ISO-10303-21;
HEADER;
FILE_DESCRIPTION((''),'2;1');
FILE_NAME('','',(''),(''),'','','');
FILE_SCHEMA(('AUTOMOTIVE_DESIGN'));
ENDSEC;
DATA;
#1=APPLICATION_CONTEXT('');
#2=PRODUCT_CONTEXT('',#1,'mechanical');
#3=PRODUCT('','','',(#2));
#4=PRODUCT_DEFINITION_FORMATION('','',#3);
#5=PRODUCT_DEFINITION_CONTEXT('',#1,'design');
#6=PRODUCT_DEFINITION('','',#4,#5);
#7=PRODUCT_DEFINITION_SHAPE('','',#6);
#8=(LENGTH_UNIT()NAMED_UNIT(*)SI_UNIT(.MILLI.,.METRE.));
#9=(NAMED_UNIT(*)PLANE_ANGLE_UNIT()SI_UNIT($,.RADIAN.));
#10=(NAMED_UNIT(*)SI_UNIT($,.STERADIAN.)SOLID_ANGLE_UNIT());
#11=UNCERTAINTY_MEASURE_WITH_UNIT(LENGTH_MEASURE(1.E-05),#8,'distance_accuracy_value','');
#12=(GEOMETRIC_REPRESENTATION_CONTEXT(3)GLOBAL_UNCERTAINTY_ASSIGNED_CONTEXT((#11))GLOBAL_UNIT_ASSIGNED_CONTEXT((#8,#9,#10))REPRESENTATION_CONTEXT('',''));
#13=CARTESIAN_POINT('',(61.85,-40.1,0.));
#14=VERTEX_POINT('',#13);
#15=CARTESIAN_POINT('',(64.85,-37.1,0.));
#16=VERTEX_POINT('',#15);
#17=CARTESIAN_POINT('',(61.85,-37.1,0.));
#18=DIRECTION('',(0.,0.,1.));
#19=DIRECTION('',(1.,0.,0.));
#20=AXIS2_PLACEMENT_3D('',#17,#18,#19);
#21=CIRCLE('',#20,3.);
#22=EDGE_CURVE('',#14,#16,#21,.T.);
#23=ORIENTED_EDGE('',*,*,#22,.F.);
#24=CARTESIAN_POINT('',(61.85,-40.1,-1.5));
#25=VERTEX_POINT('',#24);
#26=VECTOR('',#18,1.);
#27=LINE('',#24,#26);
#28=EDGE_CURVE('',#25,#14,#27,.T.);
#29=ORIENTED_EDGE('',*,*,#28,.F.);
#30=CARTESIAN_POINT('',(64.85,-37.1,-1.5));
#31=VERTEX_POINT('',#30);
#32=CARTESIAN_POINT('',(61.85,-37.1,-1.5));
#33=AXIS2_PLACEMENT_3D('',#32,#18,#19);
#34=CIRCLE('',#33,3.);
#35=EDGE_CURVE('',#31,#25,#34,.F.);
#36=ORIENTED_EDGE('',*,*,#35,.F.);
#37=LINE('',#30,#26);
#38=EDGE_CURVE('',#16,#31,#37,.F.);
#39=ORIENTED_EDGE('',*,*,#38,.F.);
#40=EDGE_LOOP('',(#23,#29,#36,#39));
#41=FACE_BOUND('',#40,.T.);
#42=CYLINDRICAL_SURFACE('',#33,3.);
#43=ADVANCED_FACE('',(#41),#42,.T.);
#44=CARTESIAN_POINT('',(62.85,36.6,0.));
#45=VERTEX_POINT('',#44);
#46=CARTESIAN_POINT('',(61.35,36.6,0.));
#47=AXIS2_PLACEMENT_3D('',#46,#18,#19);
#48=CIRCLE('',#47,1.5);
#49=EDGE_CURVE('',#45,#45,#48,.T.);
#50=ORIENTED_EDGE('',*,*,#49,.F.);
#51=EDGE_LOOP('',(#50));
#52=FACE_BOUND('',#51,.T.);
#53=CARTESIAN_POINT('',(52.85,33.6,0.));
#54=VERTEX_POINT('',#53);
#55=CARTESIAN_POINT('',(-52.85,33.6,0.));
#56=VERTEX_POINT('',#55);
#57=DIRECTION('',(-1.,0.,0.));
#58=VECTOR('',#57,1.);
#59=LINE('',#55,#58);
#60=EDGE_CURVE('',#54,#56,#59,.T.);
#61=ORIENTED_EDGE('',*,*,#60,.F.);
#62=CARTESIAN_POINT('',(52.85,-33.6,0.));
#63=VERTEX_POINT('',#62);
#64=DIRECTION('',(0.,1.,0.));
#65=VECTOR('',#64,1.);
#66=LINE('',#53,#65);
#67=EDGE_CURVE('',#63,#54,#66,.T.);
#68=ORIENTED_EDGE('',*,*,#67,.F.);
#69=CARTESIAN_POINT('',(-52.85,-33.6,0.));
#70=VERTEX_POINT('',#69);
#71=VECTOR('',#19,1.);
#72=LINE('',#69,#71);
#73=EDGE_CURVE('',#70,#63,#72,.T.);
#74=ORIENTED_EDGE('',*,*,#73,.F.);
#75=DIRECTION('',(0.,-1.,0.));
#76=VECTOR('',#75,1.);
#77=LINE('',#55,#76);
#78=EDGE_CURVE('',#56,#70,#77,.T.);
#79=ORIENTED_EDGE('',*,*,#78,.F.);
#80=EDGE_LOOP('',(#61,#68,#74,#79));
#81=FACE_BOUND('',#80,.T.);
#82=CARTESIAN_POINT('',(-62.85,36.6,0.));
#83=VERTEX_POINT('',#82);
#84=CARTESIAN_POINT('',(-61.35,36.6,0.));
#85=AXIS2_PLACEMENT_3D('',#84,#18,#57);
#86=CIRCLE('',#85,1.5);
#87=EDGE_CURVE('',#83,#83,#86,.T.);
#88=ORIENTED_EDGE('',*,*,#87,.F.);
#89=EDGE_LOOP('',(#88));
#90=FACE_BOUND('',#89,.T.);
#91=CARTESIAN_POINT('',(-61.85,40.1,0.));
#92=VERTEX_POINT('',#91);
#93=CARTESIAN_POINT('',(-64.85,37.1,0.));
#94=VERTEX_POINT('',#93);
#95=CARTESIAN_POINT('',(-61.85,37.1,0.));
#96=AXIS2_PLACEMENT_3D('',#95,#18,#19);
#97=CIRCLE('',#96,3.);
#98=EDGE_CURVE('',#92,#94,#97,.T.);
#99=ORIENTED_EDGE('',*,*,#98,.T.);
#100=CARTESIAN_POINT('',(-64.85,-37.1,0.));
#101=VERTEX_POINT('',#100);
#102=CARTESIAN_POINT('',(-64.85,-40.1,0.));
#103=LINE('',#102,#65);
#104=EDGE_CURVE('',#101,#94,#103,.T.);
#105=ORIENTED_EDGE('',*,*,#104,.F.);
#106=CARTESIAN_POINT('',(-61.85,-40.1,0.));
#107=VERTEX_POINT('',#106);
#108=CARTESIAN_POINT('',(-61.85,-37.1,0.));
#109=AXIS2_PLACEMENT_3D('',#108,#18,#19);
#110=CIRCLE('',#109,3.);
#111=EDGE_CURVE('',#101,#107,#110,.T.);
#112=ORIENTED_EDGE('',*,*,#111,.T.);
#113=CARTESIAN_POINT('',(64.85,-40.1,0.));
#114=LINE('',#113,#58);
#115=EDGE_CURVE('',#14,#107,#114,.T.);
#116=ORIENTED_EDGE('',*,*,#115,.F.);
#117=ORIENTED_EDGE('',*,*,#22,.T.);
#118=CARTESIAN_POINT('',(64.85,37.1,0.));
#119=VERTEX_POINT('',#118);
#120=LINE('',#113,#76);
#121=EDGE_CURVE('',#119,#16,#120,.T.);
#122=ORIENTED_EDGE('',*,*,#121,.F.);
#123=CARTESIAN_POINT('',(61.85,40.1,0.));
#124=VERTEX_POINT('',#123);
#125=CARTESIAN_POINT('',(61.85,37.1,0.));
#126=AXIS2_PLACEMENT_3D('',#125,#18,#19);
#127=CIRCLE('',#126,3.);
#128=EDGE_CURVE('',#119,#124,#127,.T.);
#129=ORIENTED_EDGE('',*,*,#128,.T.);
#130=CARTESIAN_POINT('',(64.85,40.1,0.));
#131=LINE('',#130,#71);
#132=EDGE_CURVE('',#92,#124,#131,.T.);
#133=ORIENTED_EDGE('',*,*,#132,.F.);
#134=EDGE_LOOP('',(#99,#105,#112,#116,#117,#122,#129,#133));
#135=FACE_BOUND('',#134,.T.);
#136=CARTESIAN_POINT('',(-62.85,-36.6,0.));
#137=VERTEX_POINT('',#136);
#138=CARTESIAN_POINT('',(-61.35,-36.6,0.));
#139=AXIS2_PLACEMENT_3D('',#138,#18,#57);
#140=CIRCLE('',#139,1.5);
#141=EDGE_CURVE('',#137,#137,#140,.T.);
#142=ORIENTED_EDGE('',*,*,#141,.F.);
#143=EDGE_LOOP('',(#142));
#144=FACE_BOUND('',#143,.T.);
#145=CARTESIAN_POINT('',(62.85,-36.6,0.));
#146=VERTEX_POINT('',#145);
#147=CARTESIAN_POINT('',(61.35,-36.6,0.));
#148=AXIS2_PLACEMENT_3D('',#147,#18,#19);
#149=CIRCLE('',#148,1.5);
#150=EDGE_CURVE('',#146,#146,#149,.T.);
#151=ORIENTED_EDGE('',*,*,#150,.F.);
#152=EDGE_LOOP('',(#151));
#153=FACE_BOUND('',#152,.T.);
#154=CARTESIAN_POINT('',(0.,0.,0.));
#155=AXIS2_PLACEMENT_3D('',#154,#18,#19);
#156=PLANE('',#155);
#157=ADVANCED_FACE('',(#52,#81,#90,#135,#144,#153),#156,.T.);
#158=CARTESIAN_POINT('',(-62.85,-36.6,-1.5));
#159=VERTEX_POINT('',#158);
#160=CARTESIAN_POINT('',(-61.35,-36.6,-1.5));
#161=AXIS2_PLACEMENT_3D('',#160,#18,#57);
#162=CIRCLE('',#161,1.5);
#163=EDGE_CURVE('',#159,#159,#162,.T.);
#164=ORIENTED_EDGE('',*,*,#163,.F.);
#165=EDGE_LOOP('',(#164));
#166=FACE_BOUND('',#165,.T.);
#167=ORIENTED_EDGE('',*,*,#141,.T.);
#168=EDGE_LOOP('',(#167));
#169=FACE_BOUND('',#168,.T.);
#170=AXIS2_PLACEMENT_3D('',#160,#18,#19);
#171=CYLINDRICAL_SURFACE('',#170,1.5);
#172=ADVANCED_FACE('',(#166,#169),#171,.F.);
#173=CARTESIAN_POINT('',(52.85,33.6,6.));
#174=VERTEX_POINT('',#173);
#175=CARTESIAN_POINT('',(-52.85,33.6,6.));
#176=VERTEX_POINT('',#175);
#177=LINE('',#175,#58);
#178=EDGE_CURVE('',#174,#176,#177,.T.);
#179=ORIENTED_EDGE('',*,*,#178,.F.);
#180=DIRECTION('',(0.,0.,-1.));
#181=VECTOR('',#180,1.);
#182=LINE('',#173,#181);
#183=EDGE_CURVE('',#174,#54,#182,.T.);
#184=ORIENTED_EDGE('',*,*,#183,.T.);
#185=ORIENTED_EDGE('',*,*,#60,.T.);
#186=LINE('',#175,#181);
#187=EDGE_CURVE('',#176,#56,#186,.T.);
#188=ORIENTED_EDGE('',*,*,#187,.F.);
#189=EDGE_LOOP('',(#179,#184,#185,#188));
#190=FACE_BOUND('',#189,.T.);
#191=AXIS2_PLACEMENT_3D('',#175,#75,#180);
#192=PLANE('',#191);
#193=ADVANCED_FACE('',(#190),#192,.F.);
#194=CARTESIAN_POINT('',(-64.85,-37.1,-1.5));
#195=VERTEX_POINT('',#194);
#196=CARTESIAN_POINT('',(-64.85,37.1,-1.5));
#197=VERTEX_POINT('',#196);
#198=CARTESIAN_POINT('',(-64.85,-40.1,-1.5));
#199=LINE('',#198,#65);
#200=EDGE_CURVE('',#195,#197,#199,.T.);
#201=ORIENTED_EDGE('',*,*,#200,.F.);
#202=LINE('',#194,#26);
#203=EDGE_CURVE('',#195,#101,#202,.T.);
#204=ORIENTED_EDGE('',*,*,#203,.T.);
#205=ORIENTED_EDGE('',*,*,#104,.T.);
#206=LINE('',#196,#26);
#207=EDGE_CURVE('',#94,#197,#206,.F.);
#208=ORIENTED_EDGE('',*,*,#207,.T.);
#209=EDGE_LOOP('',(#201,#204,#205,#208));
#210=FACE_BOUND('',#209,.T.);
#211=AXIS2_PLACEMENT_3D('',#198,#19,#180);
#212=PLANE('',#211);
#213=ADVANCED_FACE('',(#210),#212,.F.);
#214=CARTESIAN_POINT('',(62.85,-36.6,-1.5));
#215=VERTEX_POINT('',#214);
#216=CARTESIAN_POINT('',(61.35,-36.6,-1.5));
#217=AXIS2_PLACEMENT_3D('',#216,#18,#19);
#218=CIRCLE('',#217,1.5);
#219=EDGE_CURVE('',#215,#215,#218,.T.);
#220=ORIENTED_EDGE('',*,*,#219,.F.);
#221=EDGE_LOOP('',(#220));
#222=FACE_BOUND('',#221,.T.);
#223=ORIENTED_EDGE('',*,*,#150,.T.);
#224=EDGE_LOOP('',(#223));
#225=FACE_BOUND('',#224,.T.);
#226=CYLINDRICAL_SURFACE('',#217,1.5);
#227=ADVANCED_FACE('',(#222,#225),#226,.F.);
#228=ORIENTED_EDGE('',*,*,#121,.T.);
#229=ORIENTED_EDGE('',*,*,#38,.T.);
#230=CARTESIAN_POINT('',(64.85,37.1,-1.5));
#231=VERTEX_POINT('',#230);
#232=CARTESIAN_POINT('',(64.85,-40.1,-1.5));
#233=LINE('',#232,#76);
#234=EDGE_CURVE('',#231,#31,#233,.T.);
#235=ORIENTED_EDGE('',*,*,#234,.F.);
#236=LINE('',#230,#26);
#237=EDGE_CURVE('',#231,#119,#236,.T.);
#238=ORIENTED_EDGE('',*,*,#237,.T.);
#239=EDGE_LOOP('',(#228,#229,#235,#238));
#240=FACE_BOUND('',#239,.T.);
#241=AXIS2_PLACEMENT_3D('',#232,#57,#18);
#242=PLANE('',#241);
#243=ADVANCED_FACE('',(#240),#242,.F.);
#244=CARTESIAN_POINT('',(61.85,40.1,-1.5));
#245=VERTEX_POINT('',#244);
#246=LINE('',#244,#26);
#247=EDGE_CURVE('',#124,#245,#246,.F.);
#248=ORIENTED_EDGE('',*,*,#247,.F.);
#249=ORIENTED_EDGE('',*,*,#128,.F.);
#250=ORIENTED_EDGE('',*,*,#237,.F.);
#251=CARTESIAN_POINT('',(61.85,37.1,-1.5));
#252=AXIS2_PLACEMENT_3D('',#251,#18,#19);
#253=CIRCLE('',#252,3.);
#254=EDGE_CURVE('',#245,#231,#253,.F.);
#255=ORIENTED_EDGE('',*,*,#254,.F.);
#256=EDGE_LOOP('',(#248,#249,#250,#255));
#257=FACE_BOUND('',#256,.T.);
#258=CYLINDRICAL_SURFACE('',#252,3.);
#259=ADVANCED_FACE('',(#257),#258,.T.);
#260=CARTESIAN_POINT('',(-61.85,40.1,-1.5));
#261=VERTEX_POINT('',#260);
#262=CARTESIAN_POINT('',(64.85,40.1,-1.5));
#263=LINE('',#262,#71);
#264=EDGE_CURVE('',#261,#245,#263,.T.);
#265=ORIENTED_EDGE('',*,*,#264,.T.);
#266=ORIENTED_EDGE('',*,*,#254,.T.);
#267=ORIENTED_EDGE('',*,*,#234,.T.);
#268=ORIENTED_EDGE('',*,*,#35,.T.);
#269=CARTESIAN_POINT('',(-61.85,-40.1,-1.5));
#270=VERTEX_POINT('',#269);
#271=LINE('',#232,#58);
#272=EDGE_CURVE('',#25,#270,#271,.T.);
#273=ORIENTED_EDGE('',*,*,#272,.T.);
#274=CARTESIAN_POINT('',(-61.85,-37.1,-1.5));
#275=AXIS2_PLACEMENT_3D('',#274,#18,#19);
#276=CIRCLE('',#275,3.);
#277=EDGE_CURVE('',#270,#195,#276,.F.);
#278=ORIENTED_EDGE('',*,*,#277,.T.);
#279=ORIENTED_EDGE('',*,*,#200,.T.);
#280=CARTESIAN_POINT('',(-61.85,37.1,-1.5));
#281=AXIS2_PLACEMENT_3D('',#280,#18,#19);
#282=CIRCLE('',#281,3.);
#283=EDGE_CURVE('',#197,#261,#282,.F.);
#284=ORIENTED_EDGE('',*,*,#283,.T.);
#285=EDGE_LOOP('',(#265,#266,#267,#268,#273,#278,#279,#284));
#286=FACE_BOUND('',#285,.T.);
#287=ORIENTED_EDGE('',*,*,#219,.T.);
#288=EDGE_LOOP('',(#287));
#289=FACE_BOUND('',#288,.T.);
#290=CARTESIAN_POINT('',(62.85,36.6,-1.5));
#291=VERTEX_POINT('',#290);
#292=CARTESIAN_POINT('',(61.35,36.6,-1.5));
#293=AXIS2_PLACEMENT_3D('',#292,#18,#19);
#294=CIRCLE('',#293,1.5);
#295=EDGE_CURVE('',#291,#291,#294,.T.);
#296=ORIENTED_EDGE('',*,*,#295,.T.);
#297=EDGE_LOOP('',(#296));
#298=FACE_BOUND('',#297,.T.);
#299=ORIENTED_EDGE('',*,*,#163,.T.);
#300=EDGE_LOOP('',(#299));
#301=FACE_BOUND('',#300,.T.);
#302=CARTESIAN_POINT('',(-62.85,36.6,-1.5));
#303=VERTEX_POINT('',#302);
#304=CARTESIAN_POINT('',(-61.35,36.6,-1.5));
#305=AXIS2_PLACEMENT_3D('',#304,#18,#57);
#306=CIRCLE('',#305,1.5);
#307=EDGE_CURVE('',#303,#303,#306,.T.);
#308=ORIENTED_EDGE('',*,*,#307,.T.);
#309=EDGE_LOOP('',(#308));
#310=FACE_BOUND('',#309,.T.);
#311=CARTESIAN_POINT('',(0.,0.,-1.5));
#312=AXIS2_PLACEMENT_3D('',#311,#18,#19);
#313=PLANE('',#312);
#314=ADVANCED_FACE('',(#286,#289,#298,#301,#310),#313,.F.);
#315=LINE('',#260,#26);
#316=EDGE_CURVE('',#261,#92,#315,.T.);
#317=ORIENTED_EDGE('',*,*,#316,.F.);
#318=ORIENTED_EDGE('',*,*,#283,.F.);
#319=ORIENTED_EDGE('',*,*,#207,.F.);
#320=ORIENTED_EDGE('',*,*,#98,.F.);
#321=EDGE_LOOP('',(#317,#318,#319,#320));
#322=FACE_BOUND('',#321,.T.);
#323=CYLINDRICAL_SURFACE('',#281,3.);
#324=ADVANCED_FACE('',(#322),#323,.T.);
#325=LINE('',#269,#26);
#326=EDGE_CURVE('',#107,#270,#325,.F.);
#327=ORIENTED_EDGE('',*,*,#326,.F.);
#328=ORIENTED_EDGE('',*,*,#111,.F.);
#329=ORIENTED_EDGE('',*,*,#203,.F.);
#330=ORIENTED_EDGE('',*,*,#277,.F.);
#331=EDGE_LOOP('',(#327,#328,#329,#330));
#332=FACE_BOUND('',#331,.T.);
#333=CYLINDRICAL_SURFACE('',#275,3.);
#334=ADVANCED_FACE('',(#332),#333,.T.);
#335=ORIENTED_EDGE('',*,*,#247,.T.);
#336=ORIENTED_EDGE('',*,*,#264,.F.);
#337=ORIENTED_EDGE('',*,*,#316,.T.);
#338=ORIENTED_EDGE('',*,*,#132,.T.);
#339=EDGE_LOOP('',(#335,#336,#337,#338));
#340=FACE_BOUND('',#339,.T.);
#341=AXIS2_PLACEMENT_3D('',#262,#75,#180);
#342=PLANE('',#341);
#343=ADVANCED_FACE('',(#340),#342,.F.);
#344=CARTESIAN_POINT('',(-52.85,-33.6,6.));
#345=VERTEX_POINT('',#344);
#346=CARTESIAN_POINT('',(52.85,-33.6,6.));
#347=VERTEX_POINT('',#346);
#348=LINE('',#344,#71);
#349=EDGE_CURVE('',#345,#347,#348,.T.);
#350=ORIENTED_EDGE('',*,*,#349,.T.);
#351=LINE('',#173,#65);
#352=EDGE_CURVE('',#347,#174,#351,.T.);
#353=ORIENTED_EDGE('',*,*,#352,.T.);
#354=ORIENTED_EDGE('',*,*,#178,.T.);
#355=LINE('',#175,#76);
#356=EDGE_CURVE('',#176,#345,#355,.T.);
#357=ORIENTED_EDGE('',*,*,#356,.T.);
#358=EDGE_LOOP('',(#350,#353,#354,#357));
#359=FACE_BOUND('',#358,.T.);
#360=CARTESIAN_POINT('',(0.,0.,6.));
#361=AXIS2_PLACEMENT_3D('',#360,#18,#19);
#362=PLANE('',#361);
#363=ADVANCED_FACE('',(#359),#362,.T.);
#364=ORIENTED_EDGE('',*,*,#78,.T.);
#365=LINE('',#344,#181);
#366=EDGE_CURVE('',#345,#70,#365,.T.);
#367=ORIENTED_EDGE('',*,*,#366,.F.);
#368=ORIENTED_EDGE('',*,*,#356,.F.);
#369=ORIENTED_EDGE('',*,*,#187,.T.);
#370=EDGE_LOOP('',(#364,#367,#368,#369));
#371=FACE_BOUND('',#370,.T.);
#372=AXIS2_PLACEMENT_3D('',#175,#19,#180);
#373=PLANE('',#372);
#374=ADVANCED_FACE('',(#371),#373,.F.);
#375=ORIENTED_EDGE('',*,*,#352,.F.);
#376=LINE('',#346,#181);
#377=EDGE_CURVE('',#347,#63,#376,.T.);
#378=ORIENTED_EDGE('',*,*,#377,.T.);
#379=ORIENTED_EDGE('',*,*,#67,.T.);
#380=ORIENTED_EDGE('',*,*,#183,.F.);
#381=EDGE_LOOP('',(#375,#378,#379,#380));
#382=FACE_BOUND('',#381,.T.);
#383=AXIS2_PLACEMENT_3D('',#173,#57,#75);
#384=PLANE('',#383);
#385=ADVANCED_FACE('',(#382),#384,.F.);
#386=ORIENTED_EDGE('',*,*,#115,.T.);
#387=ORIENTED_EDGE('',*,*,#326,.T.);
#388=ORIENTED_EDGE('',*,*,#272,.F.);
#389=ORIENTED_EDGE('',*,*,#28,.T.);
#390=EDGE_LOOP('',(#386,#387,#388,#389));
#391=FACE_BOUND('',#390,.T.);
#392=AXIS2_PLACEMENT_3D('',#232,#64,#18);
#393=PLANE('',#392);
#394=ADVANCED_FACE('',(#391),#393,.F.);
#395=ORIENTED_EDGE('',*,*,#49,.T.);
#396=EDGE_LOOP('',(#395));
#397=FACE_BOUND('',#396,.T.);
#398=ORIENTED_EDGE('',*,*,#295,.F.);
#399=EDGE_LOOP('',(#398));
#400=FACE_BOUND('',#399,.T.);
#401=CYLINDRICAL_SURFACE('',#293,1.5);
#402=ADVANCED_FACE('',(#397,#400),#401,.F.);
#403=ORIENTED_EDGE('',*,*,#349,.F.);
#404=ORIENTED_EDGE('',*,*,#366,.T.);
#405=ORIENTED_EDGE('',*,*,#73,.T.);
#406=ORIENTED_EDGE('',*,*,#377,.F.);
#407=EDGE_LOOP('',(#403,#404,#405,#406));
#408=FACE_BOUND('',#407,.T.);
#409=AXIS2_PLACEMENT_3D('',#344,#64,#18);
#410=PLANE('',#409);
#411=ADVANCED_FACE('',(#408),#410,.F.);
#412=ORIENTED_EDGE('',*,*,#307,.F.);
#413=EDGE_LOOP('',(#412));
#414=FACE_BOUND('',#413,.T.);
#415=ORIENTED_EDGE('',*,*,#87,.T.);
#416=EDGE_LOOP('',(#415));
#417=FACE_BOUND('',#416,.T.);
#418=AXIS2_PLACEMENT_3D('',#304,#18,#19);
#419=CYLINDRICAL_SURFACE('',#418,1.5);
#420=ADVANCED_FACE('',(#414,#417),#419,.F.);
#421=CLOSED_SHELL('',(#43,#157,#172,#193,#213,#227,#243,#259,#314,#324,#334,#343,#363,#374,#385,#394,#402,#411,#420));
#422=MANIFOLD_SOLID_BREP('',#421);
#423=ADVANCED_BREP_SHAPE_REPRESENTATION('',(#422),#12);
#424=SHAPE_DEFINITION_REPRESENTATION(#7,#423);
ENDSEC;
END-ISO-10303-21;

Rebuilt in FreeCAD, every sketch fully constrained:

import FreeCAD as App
import Part
import Sketcher
from FreeCAD import Vector
Q = App.Units.Quantity


def edges_at(feature, points):
    """Names of the edges that pass closest to the given points."""
    edges = feature.Shape.Edges
    near = lambda p: min(range(len(edges)), key=lambda i: edges[i].distToShape(Part.Vertex(*p))[0])
    return sorted({f"Edge{near(p) + 1}" for p in points})


def add_polygon(sketch, points):
    """Adds a closed chain of lines whose ends are joined by coincident constraints."""
    first, n = sketch.GeometryCount, len(points)
    for a, b in zip(points, points[1:] + points[:1]):
        sketch.addGeometry(Part.LineSegment(App.Vector(*a, 0), App.Vector(*b, 0)), False)
    for i in range(n):
        sketch.addConstraint(Sketcher.Constraint("Coincident", first + i, 2, first + (i + 1) % n, 1))

doc = App.newDocument("Part")
body = doc.addObject("PartDesign::Body", "Body")

sketch1 = body.newObject("Sketcher::SketchObject", "Sketch")
sketch1.AttachmentSupport = (doc.getObject("XY_Plane"), [""])
sketch1.MapMode = "FlatFace"
add_polygon(sketch1, [(-53, 34), (-53, -34), (53, -34), (53, 34)])
sketch1.addConstraint(Sketcher.Constraint("Vertical", 0))
sketch1.addConstraint(Sketcher.Constraint("Horizontal", 1))
sketch1.addConstraint(Sketcher.Constraint("Vertical", 2))
sketch1.addConstraint(Sketcher.Constraint("Horizontal", 3))
sketch1.addConstraint(Sketcher.Constraint("Symmetric", 0, 2, 2, 2, -1, 1))
sketch1.addConstraint(Sketcher.Constraint("DistanceX", 1, 1, 1, 2, Q("105.7 mm")))
sketch1.addConstraint(Sketcher.Constraint("DistanceY", 0, 2, 0, 1, Q("67.2 mm")))
pad1 = body.newObject("PartDesign::Pad", "Pad")
pad1.Profile = sketch1
pad1.Length = 6

sketch2 = body.newObject("Sketcher::SketchObject", "Sketch001")
sketch2.AttachmentSupport = (doc.getObject("XY_Plane"), [""])
sketch2.MapMode = "FlatFace"
add_polygon(sketch2, [(65, 40), (65, -40), (-65, -40), (-65, 40)])
sketch2.addConstraint(Sketcher.Constraint("Vertical", 0))
sketch2.addConstraint(Sketcher.Constraint("Horizontal", 1))
sketch2.addConstraint(Sketcher.Constraint("Vertical", 2))
sketch2.addConstraint(Sketcher.Constraint("Horizontal", 3))
sketch2.addConstraint(Sketcher.Constraint("Symmetric", 0, 2, 2, 2, -1, 1))
sketch2.addConstraint(Sketcher.Constraint("DistanceX", 1, 2, 1, 1, Q("129.7 mm")))
sketch2.addConstraint(Sketcher.Constraint("DistanceY", 0, 2, 0, 1, Q("80.2 mm")))
pad2 = body.newObject("PartDesign::Pad", "Pad001")
pad2.Profile = sketch2
pad2.Length = 1.5
pad2.Reversed = True

sketch3 = body.newObject("Sketcher::SketchObject", "Sketch002")
sketch3.AttachmentSupport = (doc.getObject("XY_Plane"), [""])
sketch3.MapMode = "FlatFace"
sketch3.addGeometry(Part.Circle(Vector(61.4, 36.6, 0), Vector(0, 0, 1), 1.5), False)
sketch3.addGeometry(Part.Circle(Vector(61.4, -36.6, 0), Vector(0, 0, 1), 1.5), False)
sketch3.addGeometry(Part.Circle(Vector(-61.4, -36.6, 0), Vector(0, 0, 1), 1.5), False)
sketch3.addGeometry(Part.Circle(Vector(-61.4, 36.6, 0), Vector(0, 0, 1), 1.5), False)
sketch3.addConstraint(Sketcher.Constraint("Equal", 0, 1))
sketch3.addConstraint(Sketcher.Constraint("Equal", 1, 2))
sketch3.addConstraint(Sketcher.Constraint("Equal", 2, 3))
sketch3.addConstraint(Sketcher.Constraint("Symmetric", 0, 3, 2, 3, -1, 1))
sketch3.addConstraint(Sketcher.Constraint("Symmetric", 1, 3, 3, 3, -1, 1))
sketch3.addConstraint(Sketcher.Constraint("Symmetric", 1, 3, 2, 3, -2))
sketch3.addConstraint(Sketcher.Constraint("Diameter", 0, Q("3 mm")))
sketch3.addConstraint(Sketcher.Constraint("DistanceY", -1, 1, 0, 3, Q("36.6 mm")))
sketch3.addConstraint(Sketcher.Constraint("DistanceX", 2, 3, 1, 3, Q("122.7 mm")))
pocket1 = body.newObject("PartDesign::Pocket", "Pocket")
pocket1.Profile = sketch3
pocket1.Length = 1.5
doc.recompute()

fillet = body.newObject("PartDesign::Fillet", "Fillet")
fillet.Base = (pocket1, edges_at(pocket1, [
    (-64.85, -40.1, -0.75),
    (-64.85, 40.1, -0.75),
    (64.85, 40.1, -0.75),
    (64.85, -40.1, -0.75),
]))
fillet.Radius = 3

doc.recompute()
